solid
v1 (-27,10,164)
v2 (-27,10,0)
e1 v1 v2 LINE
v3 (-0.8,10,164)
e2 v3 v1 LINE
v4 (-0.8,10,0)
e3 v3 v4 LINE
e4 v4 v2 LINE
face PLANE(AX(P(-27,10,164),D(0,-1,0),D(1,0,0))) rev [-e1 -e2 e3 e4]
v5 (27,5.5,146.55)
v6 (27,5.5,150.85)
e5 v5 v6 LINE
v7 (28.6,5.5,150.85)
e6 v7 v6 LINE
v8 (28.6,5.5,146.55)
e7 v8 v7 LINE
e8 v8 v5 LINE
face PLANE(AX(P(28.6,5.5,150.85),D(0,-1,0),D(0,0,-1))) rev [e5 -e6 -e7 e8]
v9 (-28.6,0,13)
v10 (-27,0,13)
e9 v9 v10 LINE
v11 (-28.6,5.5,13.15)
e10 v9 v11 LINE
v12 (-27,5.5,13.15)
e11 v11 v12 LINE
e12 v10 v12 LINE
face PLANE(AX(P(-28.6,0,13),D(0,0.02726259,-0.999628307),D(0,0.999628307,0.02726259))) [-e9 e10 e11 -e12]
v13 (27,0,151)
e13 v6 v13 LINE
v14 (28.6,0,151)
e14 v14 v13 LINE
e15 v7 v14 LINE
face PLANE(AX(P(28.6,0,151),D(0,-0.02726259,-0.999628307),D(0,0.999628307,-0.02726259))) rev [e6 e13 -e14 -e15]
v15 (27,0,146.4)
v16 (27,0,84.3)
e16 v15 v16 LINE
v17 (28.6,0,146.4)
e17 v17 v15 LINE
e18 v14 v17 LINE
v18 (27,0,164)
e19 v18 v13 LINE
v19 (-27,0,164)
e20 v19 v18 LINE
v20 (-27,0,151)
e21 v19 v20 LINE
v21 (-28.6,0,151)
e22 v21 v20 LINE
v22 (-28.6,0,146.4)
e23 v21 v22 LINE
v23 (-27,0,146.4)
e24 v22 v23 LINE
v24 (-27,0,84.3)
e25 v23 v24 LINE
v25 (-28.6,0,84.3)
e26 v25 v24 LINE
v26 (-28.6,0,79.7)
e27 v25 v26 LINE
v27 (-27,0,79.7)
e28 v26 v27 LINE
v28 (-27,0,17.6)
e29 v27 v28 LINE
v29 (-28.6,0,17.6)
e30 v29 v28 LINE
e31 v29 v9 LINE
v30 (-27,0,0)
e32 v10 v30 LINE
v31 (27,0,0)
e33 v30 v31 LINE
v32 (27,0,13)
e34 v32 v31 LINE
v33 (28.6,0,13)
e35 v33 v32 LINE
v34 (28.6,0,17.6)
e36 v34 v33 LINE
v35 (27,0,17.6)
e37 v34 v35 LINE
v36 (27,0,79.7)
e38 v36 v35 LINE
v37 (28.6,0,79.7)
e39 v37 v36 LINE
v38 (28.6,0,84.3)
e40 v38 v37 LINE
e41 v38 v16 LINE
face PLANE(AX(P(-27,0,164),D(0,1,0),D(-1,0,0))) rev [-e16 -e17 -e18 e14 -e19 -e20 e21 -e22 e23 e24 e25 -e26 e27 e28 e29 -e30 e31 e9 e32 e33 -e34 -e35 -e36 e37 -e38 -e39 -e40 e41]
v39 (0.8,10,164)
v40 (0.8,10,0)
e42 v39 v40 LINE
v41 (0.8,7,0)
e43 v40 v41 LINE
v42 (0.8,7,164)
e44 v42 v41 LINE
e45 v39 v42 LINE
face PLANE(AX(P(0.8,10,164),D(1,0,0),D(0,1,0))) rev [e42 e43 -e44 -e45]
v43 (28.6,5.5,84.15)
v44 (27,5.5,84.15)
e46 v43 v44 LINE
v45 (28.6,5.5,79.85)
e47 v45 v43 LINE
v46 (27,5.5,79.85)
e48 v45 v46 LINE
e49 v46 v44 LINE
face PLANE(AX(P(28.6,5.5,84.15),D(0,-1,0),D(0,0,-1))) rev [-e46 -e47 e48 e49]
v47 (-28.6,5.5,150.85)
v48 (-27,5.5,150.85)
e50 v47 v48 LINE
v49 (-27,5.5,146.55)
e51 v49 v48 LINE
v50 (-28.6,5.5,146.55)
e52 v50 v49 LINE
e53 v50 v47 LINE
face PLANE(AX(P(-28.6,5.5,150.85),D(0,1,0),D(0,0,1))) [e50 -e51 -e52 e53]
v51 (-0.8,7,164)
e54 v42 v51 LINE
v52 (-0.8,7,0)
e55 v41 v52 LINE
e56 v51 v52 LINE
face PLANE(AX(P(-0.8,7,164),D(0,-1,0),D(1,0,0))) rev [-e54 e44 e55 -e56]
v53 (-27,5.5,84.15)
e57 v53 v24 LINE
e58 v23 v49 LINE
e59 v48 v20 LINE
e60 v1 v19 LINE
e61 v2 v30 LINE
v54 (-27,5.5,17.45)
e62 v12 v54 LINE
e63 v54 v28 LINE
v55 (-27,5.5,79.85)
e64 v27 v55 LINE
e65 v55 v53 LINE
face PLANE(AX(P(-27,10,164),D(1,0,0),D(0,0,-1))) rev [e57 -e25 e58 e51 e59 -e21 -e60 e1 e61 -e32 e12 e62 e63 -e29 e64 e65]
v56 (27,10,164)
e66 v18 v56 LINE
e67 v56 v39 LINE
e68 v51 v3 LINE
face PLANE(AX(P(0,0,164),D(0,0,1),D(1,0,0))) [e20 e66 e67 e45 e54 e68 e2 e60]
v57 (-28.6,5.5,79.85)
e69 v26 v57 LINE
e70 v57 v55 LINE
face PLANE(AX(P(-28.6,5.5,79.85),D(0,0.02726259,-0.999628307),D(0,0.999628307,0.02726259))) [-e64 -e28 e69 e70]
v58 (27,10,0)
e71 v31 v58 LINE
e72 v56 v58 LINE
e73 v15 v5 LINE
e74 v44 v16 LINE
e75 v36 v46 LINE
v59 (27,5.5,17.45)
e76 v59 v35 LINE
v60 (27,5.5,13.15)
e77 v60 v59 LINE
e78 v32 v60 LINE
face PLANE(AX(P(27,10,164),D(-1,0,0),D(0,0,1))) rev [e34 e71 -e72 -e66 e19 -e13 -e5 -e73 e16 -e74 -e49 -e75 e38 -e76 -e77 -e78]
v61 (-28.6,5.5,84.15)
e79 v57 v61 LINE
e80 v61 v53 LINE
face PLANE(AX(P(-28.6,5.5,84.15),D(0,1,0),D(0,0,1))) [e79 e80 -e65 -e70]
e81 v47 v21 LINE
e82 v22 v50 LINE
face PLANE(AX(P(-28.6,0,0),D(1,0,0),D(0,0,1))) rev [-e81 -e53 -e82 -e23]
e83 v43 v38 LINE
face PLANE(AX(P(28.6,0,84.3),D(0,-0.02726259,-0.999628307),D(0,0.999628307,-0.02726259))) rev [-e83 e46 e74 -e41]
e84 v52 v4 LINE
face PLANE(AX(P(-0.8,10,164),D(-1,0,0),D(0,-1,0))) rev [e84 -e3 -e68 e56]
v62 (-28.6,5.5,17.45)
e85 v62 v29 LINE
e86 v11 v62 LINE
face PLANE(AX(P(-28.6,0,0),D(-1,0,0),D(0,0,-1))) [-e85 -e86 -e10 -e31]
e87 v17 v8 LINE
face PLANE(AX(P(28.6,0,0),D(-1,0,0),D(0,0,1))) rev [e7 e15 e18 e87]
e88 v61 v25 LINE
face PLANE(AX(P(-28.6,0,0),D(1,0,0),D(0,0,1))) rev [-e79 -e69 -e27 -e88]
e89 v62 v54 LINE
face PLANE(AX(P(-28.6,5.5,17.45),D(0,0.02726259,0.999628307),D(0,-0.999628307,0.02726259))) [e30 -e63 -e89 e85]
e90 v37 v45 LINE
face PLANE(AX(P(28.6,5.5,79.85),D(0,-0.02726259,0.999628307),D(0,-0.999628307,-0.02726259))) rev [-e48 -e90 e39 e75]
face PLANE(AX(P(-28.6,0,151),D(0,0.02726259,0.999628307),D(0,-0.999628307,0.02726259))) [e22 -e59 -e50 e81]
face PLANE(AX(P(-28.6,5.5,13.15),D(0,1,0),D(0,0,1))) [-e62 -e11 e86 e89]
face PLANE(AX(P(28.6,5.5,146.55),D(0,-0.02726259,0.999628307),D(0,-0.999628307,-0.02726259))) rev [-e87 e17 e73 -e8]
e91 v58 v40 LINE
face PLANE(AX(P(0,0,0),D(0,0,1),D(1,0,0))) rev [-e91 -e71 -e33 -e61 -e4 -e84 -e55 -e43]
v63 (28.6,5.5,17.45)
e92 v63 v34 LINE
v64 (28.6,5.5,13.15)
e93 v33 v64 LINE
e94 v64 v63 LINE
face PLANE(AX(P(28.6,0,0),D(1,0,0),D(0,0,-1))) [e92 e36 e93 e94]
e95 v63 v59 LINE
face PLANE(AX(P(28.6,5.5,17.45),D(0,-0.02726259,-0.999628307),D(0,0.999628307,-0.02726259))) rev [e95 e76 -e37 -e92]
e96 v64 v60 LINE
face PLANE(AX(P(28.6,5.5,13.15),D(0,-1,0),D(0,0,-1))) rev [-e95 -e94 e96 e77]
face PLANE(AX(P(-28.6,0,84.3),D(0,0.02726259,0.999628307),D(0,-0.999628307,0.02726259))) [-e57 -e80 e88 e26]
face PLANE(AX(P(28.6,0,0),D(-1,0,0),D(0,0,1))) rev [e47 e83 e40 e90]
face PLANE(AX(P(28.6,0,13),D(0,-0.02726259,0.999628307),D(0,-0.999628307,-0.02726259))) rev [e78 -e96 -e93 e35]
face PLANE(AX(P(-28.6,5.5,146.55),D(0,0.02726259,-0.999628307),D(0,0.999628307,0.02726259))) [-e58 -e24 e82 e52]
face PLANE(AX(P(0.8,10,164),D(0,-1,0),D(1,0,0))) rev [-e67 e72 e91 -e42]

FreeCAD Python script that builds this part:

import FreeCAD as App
import Part
import Sketcher

doc = App.newDocument("Part")
body = doc.addObject("PartDesign::Body", "Body")

sketch1 = doc.addObject("Sketcher::SketchObject", "Sketch")
body.addObject(sketch1)
sketch1.AttachmentSupport = (doc.XY_Plane, [""])
sketch1.MapMode = "FlatFace"
sketch1.addGeometry([
    Part.LineSegment(App.Vector(-27, 10, 0), App.Vector(-27, 0, 0)),
    Part.LineSegment(App.Vector(-27, 0, 0), App.Vector(27, 0, 0)),
    Part.LineSegment(App.Vector(27, 0, 0), App.Vector(27, 10, 0)),
    Part.LineSegment(App.Vector(27, 10, 0), App.Vector(0.8, 10, 0)),
    Part.LineSegment(App.Vector(0.8, 10, 0), App.Vector(0.8, 7, 0)),
    Part.LineSegment(App.Vector(0.8, 7, 0), App.Vector(-0.8, 7, 0)),
    Part.LineSegment(App.Vector(-0.8, 7, 0), App.Vector(-0.8, 10, 0)),
    Part.LineSegment(App.Vector(-0.8, 10, 0), App.Vector(-27, 10, 0)),
], False)
sketch1.addConstraint([
    Sketcher.Constraint("Coincident", 0, 2, 1, 1),
    Sketcher.Constraint("Coincident", 1, 2, 2, 1),
    Sketcher.Constraint("Coincident", 2, 2, 3, 1),
    Sketcher.Constraint("Coincident", 3, 2, 4, 1),
    Sketcher.Constraint("Coincident", 4, 2, 5, 1),
    Sketcher.Constraint("Coincident", 5, 2, 6, 1),
    Sketcher.Constraint("Coincident", 6, 2, 7, 1),
    Sketcher.Constraint("Coincident", 7, 2, 0, 1),
    Sketcher.Constraint("Vertical", 0),
    Sketcher.Constraint("Horizontal", 1),
    Sketcher.Constraint("Vertical", 2),
    Sketcher.Constraint("Horizontal", 3),
    Sketcher.Constraint("Vertical", 4),
    Sketcher.Constraint("Horizontal", 5),
    Sketcher.Constraint("Vertical", 6),
    Sketcher.Constraint("Horizontal", 7),
    Sketcher.Constraint("Symmetric", 0, 2, 1, 2, -1, 1),
    Sketcher.Constraint("Symmetric", 3, 2, 6, 2, -2),
    Sketcher.Constraint("DistanceX", 1, 1, 1, 2, 54.0),
    Sketcher.Constraint("DistanceY", 0, 2, 0, 1, 10.0),
    Sketcher.Constraint("DistanceY", 4, 2, 4, 1, 3.0),
    Sketcher.Constraint("DistanceX", 3, 2, 3, 1, 26.2),
])
pad1 = doc.addObject("PartDesign::Pad", "Pad")
body.addObject(pad1)
pad1.Profile = sketch1
pad1.Length = 164

sketch2 = doc.addObject("Sketcher::SketchObject", "Sketch001")
body.addObject(sketch2)
sketch2.AttachmentSupport = (doc.YZ_Plane, [""])
sketch2.MapMode = "FlatFace"
sketch2.AttachmentOffset = App.Placement(App.Vector(0, 0, 27), App.Rotation())
sketch2.addGeometry([
    Part.LineSegment(App.Vector(5.5, 150.85, 0), App.Vector(0, 151, 0)),
    Part.LineSegment(App.Vector(0, 151, 0), App.Vector(0, 146.4, 0)),
    Part.LineSegment(App.Vector(0, 146.4, 0), App.Vector(5.5, 146.55, 0)),
    Part.LineSegment(App.Vector(5.5, 146.55, 0), App.Vector(5.5, 150.85, 0)),
    Part.LineSegment(App.Vector(5.5, 13.15, 0), App.Vector(5.5, 17.45, 0)),
    Part.LineSegment(App.Vector(5.5, 17.45, 0), App.Vector(0, 17.6, 0)),
    Part.LineSegment(App.Vector(0, 17.6, 0), App.Vector(0, 13, 0)),
    Part.LineSegment(App.Vector(0, 13, 0), App.Vector(5.5, 13.15, 0)),
    Part.LineSegment(App.Vector(5.5, 84.15, 0), App.Vector(0, 84.3, 0)),
    Part.LineSegment(App.Vector(0, 84.3, 0), App.Vector(0, 79.7, 0)),
    Part.LineSegment(App.Vector(0, 79.7, 0), App.Vector(5.5, 79.85, 0)),
    Part.LineSegment(App.Vector(5.5, 79.85, 0), App.Vector(5.5, 84.15, 0)),
], False)
sketch2.addConstraint([
    Sketcher.Constraint("Coincident", 0, 2, 1, 1),
    Sketcher.Constraint("Coincident", 1, 2, 2, 1),
    Sketcher.Constraint("Coincident", 2, 2, 3, 1),
    Sketcher.Constraint("Coincident", 3, 2, 0, 1),
    Sketcher.Constraint("Coincident", 4, 2, 5, 1),
    Sketcher.Constraint("Coincident", 5, 2, 6, 1),
    Sketcher.Constraint("Coincident", 6, 2, 7, 1),
    Sketcher.Constraint("Coincident", 7, 2, 4, 1),
    Sketcher.Constraint("Coincident", 8, 2, 9, 1),
    Sketcher.Constraint("Coincident", 9, 2, 10, 1),
    Sketcher.Constraint("Coincident", 10, 2, 11, 1),
    Sketcher.Constraint("Coincident", 11, 2, 8, 1),
    Sketcher.Constraint("Vertical", 1),
    Sketcher.Constraint("Vertical", 3),
    Sketcher.Constraint("Vertical", 4),
    Sketcher.Constraint("Vertical", 6),
    Sketcher.Constraint("Vertical", 9),
    Sketcher.Constraint("Vertical", 11),
    Sketcher.Constraint("PointOnObject", 0, 2, -2),
    Sketcher.Constraint("PointOnObject", 5, 2, -2),
    Sketcher.Constraint("PointOnObject", 8, 2, -2),
    Sketcher.Constraint("Parallel", 0, 5),
    Sketcher.Constraint("Parallel", 2, 7),
    Sketcher.Constraint("Parallel", 5, 8),
    Sketcher.Constraint("Parallel", 7, 10),
    Sketcher.Constraint("Vertical", 3, 2, 4, 2),
    Sketcher.Constraint("Vertical", 7, 2, 10, 2),
    Sketcher.Constraint("Equal", 3, 4),
    Sketcher.Constraint("Equal", 6, 9),
    Sketcher.Constraint("Equal", 0, 2),
    Sketcher.Constraint("DistanceY", 1, 2, 1, 1, 4.6),
    Sketcher.Constraint("DistanceY", 3, 1, 3, 2, 4.3),
    Sketcher.Constraint("DistanceY", -1, 1, 0, 2, 151.0),
    Sketcher.Constraint("DistanceY", -1, 1, 6, 2, 13.0),
    Sketcher.Constraint("DistanceX", -1, 1, 2, 2, 5.5),
    Sketcher.Constraint("DistanceY", -1, 1, 8, 2, 84.3),
])
pad2 = doc.addObject("PartDesign::Pad", "Pad001")
body.addObject(pad2)
pad2.Profile = sketch2
pad2.Length = 1.6
doc.recompute()

mirrored = doc.addObject("PartDesign::Mirrored", "Mirrored")
body.addObject(mirrored)
mirrored.Originals = [pad2]
mirrored.MirrorPlane = (doc.YZ_Plane, [""])
body.Tip = mirrored

doc.recompute()
